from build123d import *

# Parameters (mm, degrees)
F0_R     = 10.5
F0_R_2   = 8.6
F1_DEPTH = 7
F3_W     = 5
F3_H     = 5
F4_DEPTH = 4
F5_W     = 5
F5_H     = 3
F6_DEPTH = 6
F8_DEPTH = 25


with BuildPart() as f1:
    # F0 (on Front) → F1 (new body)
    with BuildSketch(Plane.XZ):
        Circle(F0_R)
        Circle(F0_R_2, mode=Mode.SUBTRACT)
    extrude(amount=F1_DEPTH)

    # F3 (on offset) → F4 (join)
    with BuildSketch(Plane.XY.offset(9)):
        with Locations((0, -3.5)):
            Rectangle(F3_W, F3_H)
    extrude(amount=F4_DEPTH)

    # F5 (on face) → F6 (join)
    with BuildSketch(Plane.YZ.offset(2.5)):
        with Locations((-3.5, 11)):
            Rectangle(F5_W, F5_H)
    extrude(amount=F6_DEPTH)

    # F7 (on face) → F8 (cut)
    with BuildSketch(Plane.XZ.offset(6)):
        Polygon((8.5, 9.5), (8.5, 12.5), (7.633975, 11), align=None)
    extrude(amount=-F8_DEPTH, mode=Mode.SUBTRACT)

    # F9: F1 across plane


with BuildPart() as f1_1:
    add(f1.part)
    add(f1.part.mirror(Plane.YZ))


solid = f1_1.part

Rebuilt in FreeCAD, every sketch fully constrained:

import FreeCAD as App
import Part
import Sketcher

V = App.Vector
Q = App.Units.Quantity


def add_polygon(sketch, points):
    """Adds a closed chain of lines whose ends are joined by coincident constraints."""
    first, n = sketch.GeometryCount, len(points)
    for a, b in zip(points, points[1:] + points[:1]):
        sketch.addGeometry(Part.LineSegment(App.Vector(*a, 0), App.Vector(*b, 0)), False)
    for i in range(n):
        sketch.addConstraint(Sketcher.Constraint("Coincident", first + i, 2, first + (i + 1) % n, 1))

doc = App.newDocument("Part")
body = doc.addObject("PartDesign::Body", "Body")

# Sketch on XZ plane
sketch1 = body.newObject("Sketcher::SketchObject", "Sketch")
sketch1.AttachmentSupport = (doc.getObject("XZ_Plane"), [""])
sketch1.MapMode = "FlatFace"
sketch1.addGeometry([
    Part.Circle(V(0, 0, 0), V(0, 0, 1), 10),
    Part.Circle(V(0, 0, 0), V(0, 0, 1), 9),
], False)
sketch1.addConstraint([
    Sketcher.Constraint("Coincident", 0, 3, -1, 1),
    Sketcher.Constraint("Coincident", 1, 3, -1, 1),
    Sketcher.Constraint("Diameter", 0, Q("21 mm")),
    Sketcher.Constraint("Diameter", 1, Q("17.2 mm")),
])
pad1 = body.newObject("PartDesign::Pad", "Pad")
pad1.Profile = sketch1
pad1.Length = 7

# Sketch on XY plane
sketch2 = body.newObject("Sketcher::SketchObject", "Sketch001")
sketch2.AttachmentSupport = (doc.getObject("XY_Plane"), [""])
sketch2.MapMode = "FlatFace"
sketch2.AttachmentOffset = App.Placement(V(0, 0, 9), App.Rotation())
add_polygon(sketch2, [(-2, -1), (-2, -6), (2, -6), (2, -1)])  # lines 0-3
sketch2.addConstraint([
    Sketcher.Constraint("Vertical", 0),
    Sketcher.Constraint("Horizontal", 1),
    Sketcher.Constraint("Vertical", 2),
    Sketcher.Constraint("Horizontal", 3),
    Sketcher.Constraint("Equal", 3, 0),
    Sketcher.Constraint("DistanceX", 1, 1, 1, 2, Q("5 mm")),
    Sketcher.Constraint("DistanceY", 0, 2, -1, 1, Q("6 mm")),
    Sketcher.Constraint("DistanceX", 0, 2, -1, 1, Q("2.5 mm")),
])
pad2 = body.newObject("PartDesign::Pad", "Pad001")
pad2.Profile = sketch2
pad2.Length = 4

# Sketch on YZ plane
sketch3 = body.newObject("Sketcher::SketchObject", "Sketch002")
sketch3.AttachmentSupport = (doc.getObject("YZ_Plane"), [""])
sketch3.MapMode = "FlatFace"
sketch3.AttachmentOffset = App.Placement(V(0, 0, 2.5), App.Rotation())
add_polygon(sketch3, [(-6, 12.5), (-6, 9.5), (-1, 9.5), (-1, 12.5)])  # lines 0-3
sketch3.addConstraint([
    Sketcher.Constraint("Vertical", 0),
    Sketcher.Constraint("Horizontal", 1),
    Sketcher.Constraint("Vertical", 2),
    Sketcher.Constraint("Horizontal", 3),
    Sketcher.Constraint("DistanceX", 1, 1, 1, 2, Q("5 mm")),
    Sketcher.Constraint("DistanceY", 0, 2, 0, 1, Q("3 mm")),
    Sketcher.Constraint("DistanceX", 0, 2, -1, 1, Q("6 mm")),
    Sketcher.Constraint("DistanceY", -1, 1, 0, 2, Q("9.5 mm")),
])
pad3 = body.newObject("PartDesign::Pad", "Pad002")
pad3.Profile = sketch3
pad3.Length = 6

# Sketch on XZ plane
sketch4 = body.newObject("Sketcher::SketchObject", "Sketch003")
sketch4.AttachmentSupport = (doc.getObject("XZ_Plane"), [""])
sketch4.MapMode = "FlatFace"
sketch4.AttachmentOffset = App.Placement(V(0, 0, 6), App.Rotation())
add_polygon(sketch4, [(8.5, 9.5), (8.5, 12.5), (7.6, 11)])  # lines 0-2
sketch4.addConstraint([
    Sketcher.Constraint("Vertical", 0),
    Sketcher.Constraint("Equal", 1, 2),
    Sketcher.Constraint("DistanceY", 0, 1, 0, 2, Q("3 mm")),
    Sketcher.Constraint("Angle", 1, Q("-119.999988 deg")),
    Sketcher.Constraint("DistanceY", -1, 1, 1, 2, Q("11 mm")),
    Sketcher.Constraint("DistanceX", -1, 1, 0, 2, Q("8.5 mm")),
])
pocket1 = body.newObject("PartDesign::Pocket", "Pocket")
pocket1.Profile = sketch4
pocket1.Length = 25
body2 = doc.addObject("PartDesign::Body", "Body001")
doc.recompute()

body2.BaseFeature = body
doc.recompute()

mirroring = doc.addObject("Part::Mirroring", "Mirroring")
mirroring.Source = body
mirroring.Base = V(0, 0, 0)
mirroring.Normal = V(1, 0, 0)
body3 = doc.addObject("PartDesign::Body", "Body002")
body3.BaseFeature = mirroring
boolean = body2.newObject("PartDesign::Boolean", "Boolean")
boolean.Type = "Fuse"
boolean.addObjects([body3])
doc.recompute()
mirroring.Visibility = False

doc.recompute()
